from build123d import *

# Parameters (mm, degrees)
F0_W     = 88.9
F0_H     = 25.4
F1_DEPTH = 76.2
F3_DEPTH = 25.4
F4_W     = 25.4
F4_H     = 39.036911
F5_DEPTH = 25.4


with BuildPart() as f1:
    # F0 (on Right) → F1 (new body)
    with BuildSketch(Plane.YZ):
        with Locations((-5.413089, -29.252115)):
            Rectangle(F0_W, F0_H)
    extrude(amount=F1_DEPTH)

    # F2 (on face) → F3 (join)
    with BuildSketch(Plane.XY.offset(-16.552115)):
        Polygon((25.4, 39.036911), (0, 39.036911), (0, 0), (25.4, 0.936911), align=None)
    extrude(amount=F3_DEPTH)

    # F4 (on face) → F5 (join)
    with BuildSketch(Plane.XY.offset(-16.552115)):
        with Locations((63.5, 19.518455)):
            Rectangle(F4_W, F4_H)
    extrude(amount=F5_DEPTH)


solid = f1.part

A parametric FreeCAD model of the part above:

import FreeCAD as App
import Part
import Sketcher
from FreeCAD import Vector
Q = App.Units.Quantity


def add_polygon(sketch, points):
    """Adds a closed chain of lines whose ends are joined by coincident constraints."""
    first, n = sketch.GeometryCount, len(points)
    for a, b in zip(points, points[1:] + points[:1]):
        sketch.addGeometry(Part.LineSegment(App.Vector(*a, 0), App.Vector(*b, 0)), False)
    for i in range(n):
        sketch.addConstraint(Sketcher.Constraint("Coincident", first + i, 2, first + (i + 1) % n, 1))

doc = App.newDocument("Part")
params = doc.addObject("Spreadsheet::Sheet", "Params")
for row, (alias, value) in enumerate([
    ("sketch1_height", "1 in"),
    ("sketch1_width", "3.5 in"),
    ("pad1_length", "3 in"),
    ("sketch2_width", "1 in"),
    ("sketch2_height", "1.5 in"),
    ("pad2_length", "1 in"),
    ("sketch3_width", "1 in"),
    ("pad3_length", "1 in"),
], start=1):
    params.set(f"A{row}", alias)
    params.set(f"B{row}", "=" + value)
    params.setAlias(f"B{row}", alias)

body = doc.addObject("PartDesign::Body", "Body")

sketch1 = body.newObject("Sketcher::SketchObject", "Sketch")
sketch1.AttachmentSupport = (doc.getObject("YZ_Plane"), [""])
sketch1.MapMode = "FlatFace"
add_polygon(sketch1, [(-49.863089, -16.552115), (-49.863089, -41.952115), (39.036911, -41.952115), (39.036911, -16.552115)])
sketch1.addConstraint([
    Sketcher.Constraint("Vertical", 0),
    Sketcher.Constraint("Horizontal", 1),
    Sketcher.Constraint("Vertical", 2),
    Sketcher.Constraint("Horizontal", 3),
    Sketcher.Constraint("DistanceY", 0, 2, 0, 1, Q("1 in")),
    Sketcher.Constraint("DistanceX", 1, 1, 1, 2, Q("3.5 in")),
    Sketcher.Constraint("DistanceX", 0, 2, -1, 1, Q("49.863089 mm")),
    Sketcher.Constraint("DistanceY", 0, 2, -1, 1, Q("41.952115 mm")),
])
sketch1.setExpression("Constraints[8]", "Params.sketch1_height")
sketch1.setExpression("Constraints[9]", "Params.sketch1_width")
pad1 = body.newObject("PartDesign::Pad", "Pad")
pad1.Profile = sketch1
pad1.setExpression("Length", "Params.pad1_length")

sketch2 = body.newObject("Sketcher::SketchObject", "Sketch001")
sketch2.AttachmentSupport = (doc.getObject("XY_Plane"), [""])
sketch2.MapMode = "FlatFace"
sketch2.AttachmentOffset = App.Placement(Vector(0, 0, -16.552115), App.Rotation())
add_polygon(sketch2, [(25.4, 39.036911), (0, 39.036911), (0, 0), (25.4, 0.936911)])
sketch2.addConstraint([
    Sketcher.Constraint("Horizontal", 0),
    Sketcher.Constraint("Vertical", 1),
    Sketcher.Constraint("Vertical", 3),
    Sketcher.Constraint("Coincident", 1, 2, -1, 1),
    Sketcher.Constraint("DistanceX", 0, 2, 0, 1, Q("1 in")),
    Sketcher.Constraint("DistanceY", 3, 1, 3, 2, Q("1.5 in")),
    Sketcher.Constraint("DistanceY", 1, 2, 1, 1, Q("39.036911 mm")),
])
sketch2.setExpression("Constraints[8]", "Params.sketch2_width")
sketch2.setExpression("Constraints[9]", "Params.sketch2_height")
pad2 = body.newObject("PartDesign::Pad", "Pad001")
pad2.Profile = sketch2
pad2.setExpression("Length", "Params.pad2_length")

sketch3 = body.newObject("Sketcher::SketchObject", "Sketch002")
sketch3.AttachmentSupport = (doc.getObject("XY_Plane"), [""])
sketch3.MapMode = "FlatFace"
sketch3.AttachmentOffset = App.Placement(Vector(0, 0, -16.552115), App.Rotation())
add_polygon(sketch3, [(50.8, 39.03691), (50.8, 0), (76.2, 0), (76.2, 39.03691)])
sketch3.addConstraint([
    Sketcher.Constraint("Vertical", 0),
    Sketcher.Constraint("Horizontal", 1),
    Sketcher.Constraint("Vertical", 2),
    Sketcher.Constraint("Horizontal", 3),
    Sketcher.Constraint("PointOnObject", 0, 2, -1),
    Sketcher.Constraint("DistanceX", 1, 1, 1, 2, Q("1 in")),
    Sketcher.Constraint("DistanceX", -1, 1, 0, 2, Q("2 in")),
    Sketcher.Constraint("DistanceY", 0, 2, 0, 1, Q("39.036911 mm")),
])
sketch3.setExpression("Constraints[9]", "Params.sketch3_width")
pad3 = body.newObject("PartDesign::Pad", "Pad002")
pad3.Profile = sketch3
pad3.setExpression("Length", "Params.pad3_length")

doc.recompute()
